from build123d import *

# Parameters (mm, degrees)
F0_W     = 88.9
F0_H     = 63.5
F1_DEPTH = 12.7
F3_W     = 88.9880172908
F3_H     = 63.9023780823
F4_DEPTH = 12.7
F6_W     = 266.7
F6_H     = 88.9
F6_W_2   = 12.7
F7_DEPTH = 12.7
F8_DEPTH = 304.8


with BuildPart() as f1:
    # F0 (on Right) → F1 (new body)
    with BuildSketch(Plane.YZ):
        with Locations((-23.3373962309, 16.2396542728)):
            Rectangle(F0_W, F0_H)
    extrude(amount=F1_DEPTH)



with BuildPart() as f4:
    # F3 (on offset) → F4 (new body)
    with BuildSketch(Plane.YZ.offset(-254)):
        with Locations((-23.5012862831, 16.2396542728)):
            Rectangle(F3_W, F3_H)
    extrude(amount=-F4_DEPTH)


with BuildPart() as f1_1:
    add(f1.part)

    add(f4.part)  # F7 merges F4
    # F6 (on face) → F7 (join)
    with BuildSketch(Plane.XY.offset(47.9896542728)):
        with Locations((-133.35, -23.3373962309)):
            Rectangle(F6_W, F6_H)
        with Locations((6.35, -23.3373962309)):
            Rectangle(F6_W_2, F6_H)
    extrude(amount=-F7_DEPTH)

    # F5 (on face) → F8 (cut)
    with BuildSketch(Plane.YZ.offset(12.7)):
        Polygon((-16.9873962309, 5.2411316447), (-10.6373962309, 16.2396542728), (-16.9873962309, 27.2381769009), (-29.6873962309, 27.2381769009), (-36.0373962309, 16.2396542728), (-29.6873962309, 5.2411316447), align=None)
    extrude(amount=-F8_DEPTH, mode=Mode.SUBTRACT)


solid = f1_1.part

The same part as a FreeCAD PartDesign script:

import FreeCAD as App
import Part
import Sketcher
from FreeCAD import Vector
Q = App.Units.Quantity


def add_polygon(sketch, points):
    """Adds a closed chain of lines whose ends are joined by coincident constraints."""
    first, n = sketch.GeometryCount, len(points)
    for a, b in zip(points, points[1:] + points[:1]):
        sketch.addGeometry(Part.LineSegment(App.Vector(*a, 0), App.Vector(*b, 0)), False)
    for i in range(n):
        sketch.addConstraint(Sketcher.Constraint("Coincident", first + i, 2, first + (i + 1) % n, 1))

doc = App.newDocument("Part")
body = doc.addObject("PartDesign::Body", "Body")

# Sketch on YZ plane
sketch1 = body.newObject("Sketcher::SketchObject", "Sketch")
sketch1.AttachmentSupport = (doc.getObject("YZ_Plane"), [""])
sketch1.MapMode = "FlatFace"
add_polygon(sketch1, [(-68, 48), (-68, -16), (21, -16), (21, 48)])  # lines 0-3
sketch1.addConstraint([
    Sketcher.Constraint("Vertical", 0),
    Sketcher.Constraint("Horizontal", 1),
    Sketcher.Constraint("Vertical", 2),
    Sketcher.Constraint("Horizontal", 3),
    Sketcher.Constraint("DistanceX", 1, 1, 1, 2, Q("3.5 in")),
    Sketcher.Constraint("DistanceY", 0, 2, 0, 1, Q("2.5 in")),
    Sketcher.Constraint("DistanceX", 0, 2, -1, 1, 67.787396),
    Sketcher.Constraint("DistanceY", 0, 2, -1, 1, 15.510346),
])
pad1 = body.newObject("PartDesign::Pad", "Pad")
pad1.Profile = sketch1
pad1.Length = Q("0.5 in")
body2 = doc.addObject("PartDesign::Body", "Body001")

# Sketch on YZ plane
sketch2 = body2.newObject("Sketcher::SketchObject", "Sketch001")
sketch2.AttachmentSupport = (doc.getObject("YZ_Plane001"), [""])
sketch2.MapMode = "FlatFace"
sketch2.AttachmentOffset = App.Placement(Vector(0, 0, -10 * 25.4), App.Rotation())
add_polygon(sketch2, [(-68, 48), (-68, -16), (21, -16), (21, 48)])  # lines 0-3
sketch2.addConstraint([
    Sketcher.Constraint("Vertical", 0),
    Sketcher.Constraint("Horizontal", 1),
    Sketcher.Constraint("Vertical", 2),
    Sketcher.Constraint("Horizontal", 3),
    Sketcher.Constraint("DistanceY", 0, 2, 0, 1, 63.902378),
    Sketcher.Constraint("DistanceX", 1, 1, 1, 2, 88.988017),
    Sketcher.Constraint("DistanceX", 0, 2, -1, 1, 67.995295),
    Sketcher.Constraint("DistanceY", 0, 2, -1, 1, 15.711535),
])
pad2 = body2.newObject("PartDesign::Pad", "Pad001")
pad2.Profile = sketch2
pad2.Length = Q("0.5 in")
pad2.Reversed = True
body.AllowCompound = True
doc.recompute()

boolean = body.newObject("PartDesign::Boolean", "Boolean")
boolean.Type = "Fuse"
boolean.addObjects([body2])

# Sketch on XY plane
sketch3 = body.newObject("Sketcher::SketchObject", "Sketch002")
sketch3.AttachmentSupport = (doc.getObject("XY_Plane"), [""])
sketch3.MapMode = "FlatFace"
sketch3.AttachmentOffset = App.Placement(Vector(0, 0, 47.989654), App.Rotation())
add_polygon(sketch3, [(-267, 21), (-267, -68), (13, -68), (13, 21)])  # lines 0-3
sketch3.addConstraint([
    Sketcher.Constraint("Vertical", 0),
    Sketcher.Constraint("Horizontal", 1),
    Sketcher.Constraint("Vertical", 2),
    Sketcher.Constraint("Horizontal", 3),
    Sketcher.Constraint("DistanceX", 1, 1, 1, 2, Q("11 in")),
    Sketcher.Constraint("DistanceY", 0, 2, 0, 1, Q("3.5 in")),
    Sketcher.Constraint("DistanceX", 0, 2, -1, 1, Q("10.5 in")),
    Sketcher.Constraint("DistanceY", 0, 2, -1, 1, 67.787396),
])
pad3 = body.newObject("PartDesign::Pad", "Pad002")
pad3.Profile = sketch3
pad3.Length = Q("0.5 in")
pad3.Reversed = True

# Sketch on YZ plane
sketch4 = body.newObject("Sketcher::SketchObject", "Sketch003")
sketch4.AttachmentSupport = (doc.getObject("YZ_Plane"), [""])
sketch4.MapMode = "FlatFace"
sketch4.AttachmentOffset = App.Placement(Vector(0, 0, 0.5 * 25.4), App.Rotation())
add_polygon(sketch4, [(-17, 5), (-11, 16), (-17, 27), (-30, 27), (-36, 16), (-30, 5)])  # lines 0-5
sketch4.addConstraint([
    Sketcher.Constraint("Horizontal", 2),
    Sketcher.Constraint("Horizontal", 5),
    Sketcher.Constraint("Parallel", 0, 3),
    Sketcher.Constraint("Parallel", 1, 4),
    Sketcher.Constraint("Horizontal", 0, 2, 3, 2),
    Sketcher.Constraint("Vertical", 2, 2, 4, 2),
    Sketcher.Constraint("Vertical", 1, 2, 5, 2),
    Sketcher.Constraint("DistanceX", 2, 2, 2, 1, Q("0.5 in")),
    Sketcher.Constraint("Angle", 0, Q("60 deg")),
    Sketcher.Constraint("DistanceX", 3, 2, 0, 2, Q("1 in")),
    Sketcher.Constraint("DistanceY", -1, 1, 4, 2, 5.241132),
    Sketcher.Constraint("DistanceX", 0, 2, -1, 1, 10.637396),
])
pocket1 = body.newObject("PartDesign::Pocket", "Pocket")
pocket1.Profile = sketch4
pocket1.Length = Q("12 in")

doc.recompute()
